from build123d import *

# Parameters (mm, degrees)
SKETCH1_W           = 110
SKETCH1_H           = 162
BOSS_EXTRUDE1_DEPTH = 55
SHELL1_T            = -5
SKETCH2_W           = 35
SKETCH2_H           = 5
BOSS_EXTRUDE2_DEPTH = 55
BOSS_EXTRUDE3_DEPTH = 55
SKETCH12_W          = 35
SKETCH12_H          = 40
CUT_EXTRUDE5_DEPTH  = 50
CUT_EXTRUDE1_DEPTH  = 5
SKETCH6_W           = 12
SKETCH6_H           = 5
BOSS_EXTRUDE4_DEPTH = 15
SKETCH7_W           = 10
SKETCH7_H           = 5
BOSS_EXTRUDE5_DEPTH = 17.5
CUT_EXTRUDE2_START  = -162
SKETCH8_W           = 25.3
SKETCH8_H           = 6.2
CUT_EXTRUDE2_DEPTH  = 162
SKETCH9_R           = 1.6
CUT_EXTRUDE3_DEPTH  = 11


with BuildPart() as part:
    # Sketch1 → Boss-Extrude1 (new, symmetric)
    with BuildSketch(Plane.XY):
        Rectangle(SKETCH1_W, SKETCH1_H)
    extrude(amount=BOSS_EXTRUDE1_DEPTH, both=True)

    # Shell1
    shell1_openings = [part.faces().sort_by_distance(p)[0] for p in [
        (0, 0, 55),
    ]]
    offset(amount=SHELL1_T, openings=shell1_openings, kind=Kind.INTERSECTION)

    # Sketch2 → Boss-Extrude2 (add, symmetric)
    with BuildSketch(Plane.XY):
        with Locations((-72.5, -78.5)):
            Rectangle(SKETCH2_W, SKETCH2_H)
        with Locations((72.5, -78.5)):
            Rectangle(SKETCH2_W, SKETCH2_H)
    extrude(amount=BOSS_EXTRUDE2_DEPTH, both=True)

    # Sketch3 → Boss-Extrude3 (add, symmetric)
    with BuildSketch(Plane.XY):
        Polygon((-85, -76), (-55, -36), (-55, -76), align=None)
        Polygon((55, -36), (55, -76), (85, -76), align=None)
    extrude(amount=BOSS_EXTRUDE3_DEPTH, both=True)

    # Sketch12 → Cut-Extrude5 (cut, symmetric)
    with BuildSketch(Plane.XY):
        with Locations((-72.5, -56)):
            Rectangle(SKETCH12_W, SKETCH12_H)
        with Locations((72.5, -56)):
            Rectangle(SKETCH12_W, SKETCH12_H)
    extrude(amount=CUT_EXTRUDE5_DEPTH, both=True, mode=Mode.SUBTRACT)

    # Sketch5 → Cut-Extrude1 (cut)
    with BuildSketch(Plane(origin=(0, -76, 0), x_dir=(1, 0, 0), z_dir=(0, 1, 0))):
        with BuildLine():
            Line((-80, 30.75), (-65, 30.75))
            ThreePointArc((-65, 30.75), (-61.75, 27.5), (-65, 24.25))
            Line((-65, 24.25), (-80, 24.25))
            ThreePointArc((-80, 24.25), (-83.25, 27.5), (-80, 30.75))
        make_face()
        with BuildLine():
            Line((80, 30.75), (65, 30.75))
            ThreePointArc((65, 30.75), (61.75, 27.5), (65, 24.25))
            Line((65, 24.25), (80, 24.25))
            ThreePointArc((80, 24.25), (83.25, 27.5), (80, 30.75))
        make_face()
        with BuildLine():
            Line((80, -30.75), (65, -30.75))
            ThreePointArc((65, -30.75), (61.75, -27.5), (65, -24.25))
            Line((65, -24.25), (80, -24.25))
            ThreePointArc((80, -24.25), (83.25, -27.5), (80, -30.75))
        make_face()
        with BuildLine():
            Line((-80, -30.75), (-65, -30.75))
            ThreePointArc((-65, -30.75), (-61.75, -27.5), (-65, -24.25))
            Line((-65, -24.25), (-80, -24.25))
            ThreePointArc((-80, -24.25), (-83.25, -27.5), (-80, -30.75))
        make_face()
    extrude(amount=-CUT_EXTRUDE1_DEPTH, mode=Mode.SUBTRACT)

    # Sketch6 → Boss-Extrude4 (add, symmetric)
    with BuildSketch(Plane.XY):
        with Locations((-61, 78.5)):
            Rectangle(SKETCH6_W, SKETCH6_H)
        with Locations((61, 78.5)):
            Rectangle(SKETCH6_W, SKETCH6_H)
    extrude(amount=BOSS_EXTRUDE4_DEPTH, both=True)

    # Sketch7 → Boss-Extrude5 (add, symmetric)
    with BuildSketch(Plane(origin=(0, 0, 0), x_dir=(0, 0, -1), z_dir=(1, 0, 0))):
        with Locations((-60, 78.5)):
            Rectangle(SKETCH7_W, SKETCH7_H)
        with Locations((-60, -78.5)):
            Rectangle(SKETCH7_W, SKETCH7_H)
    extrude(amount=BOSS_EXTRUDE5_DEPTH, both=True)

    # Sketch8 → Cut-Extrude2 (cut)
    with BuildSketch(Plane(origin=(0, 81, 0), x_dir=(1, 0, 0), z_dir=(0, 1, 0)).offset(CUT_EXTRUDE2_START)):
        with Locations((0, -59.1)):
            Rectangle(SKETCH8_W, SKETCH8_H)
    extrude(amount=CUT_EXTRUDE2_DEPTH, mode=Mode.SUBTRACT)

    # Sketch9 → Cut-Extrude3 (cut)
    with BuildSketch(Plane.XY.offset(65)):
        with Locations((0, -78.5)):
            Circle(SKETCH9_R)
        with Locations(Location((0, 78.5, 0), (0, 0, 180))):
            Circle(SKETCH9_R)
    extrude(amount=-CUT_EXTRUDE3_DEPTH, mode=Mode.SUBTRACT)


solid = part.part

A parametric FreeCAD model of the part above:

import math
import FreeCAD as App
import Part
import Sketcher
from FreeCAD import Vector
Q = App.Units.Quantity


def faces_at(feature, points):
    """Names of the faces that lie closest to the given points."""
    faces = feature.Shape.Faces
    near = lambda p: min(range(len(faces)), key=lambda i: faces[i].distToShape(Part.Vertex(*p))[0])
    return sorted({f"Face{near(p) + 1}" for p in points})


def add_polygon(sketch, points):
    """Adds a closed chain of lines whose ends are joined by coincident constraints."""
    first, n = sketch.GeometryCount, len(points)
    for a, b in zip(points, points[1:] + points[:1]):
        sketch.addGeometry(Part.LineSegment(App.Vector(*a, 0), App.Vector(*b, 0)), False)
    for i in range(n):
        sketch.addConstraint(Sketcher.Constraint("Coincident", first + i, 2, first + (i + 1) % n, 1))

doc = App.newDocument("Part")
body = doc.addObject("PartDesign::Body", "Body")

sketch1 = body.newObject("Sketcher::SketchObject", "Sketch")
sketch1.AttachmentSupport = (doc.getObject("XY_Plane"), [""])
sketch1.MapMode = "FlatFace"
add_polygon(sketch1, [(-55, 81), (-55, -81), (55, -81), (55, 81)])
sketch1.addConstraint(Sketcher.Constraint("Vertical", 0))
sketch1.addConstraint(Sketcher.Constraint("Horizontal", 1))
sketch1.addConstraint(Sketcher.Constraint("Vertical", 2))
sketch1.addConstraint(Sketcher.Constraint("Horizontal", 3))
sketch1.addConstraint(Sketcher.Constraint("Symmetric", 0, 2, 2, 2, -1, 1))
sketch1.addConstraint(Sketcher.Constraint("DistanceX", 1, 1, 1, 2, Q("110 mm")))
sketch1.addConstraint(Sketcher.Constraint("DistanceY", 0, 2, 0, 1, Q("162 mm")))
pad1 = body.newObject("PartDesign::Pad", "Pad")
pad1.Profile = sketch1
pad1.Length = 110
pad1.Midplane = True
doc.recompute()

thickness = body.newObject("PartDesign::Thickness", "Thickness")
thickness.Base = (pad1, faces_at(pad1, [(0, 0, 55)]))
thickness.Value = 5
thickness.Reversed = True
thickness.Join = "Intersection"

sketch2 = body.newObject("Sketcher::SketchObject", "Sketch001")
sketch2.AttachmentSupport = (doc.getObject("XY_Plane"), [""])
sketch2.MapMode = "FlatFace"
add_polygon(sketch2, [(-90, -76), (-90, -81), (-55, -81), (-55, -76)])
add_polygon(sketch2, [(55, -76), (55, -81), (90, -81), (90, -76)])
sketch2.addConstraint(Sketcher.Constraint("Vertical", 0))
sketch2.addConstraint(Sketcher.Constraint("Horizontal", 1))
sketch2.addConstraint(Sketcher.Constraint("Vertical", 2))
sketch2.addConstraint(Sketcher.Constraint("Horizontal", 3))
sketch2.addConstraint(Sketcher.Constraint("Vertical", 4))
sketch2.addConstraint(Sketcher.Constraint("Horizontal", 5))
sketch2.addConstraint(Sketcher.Constraint("Vertical", 6))
sketch2.addConstraint(Sketcher.Constraint("Horizontal", 7))
sketch2.addConstraint(Sketcher.Constraint("Symmetric", 1, 2, 4, 2, -2))
sketch2.addConstraint(Sketcher.Constraint("Symmetric", 3, 2, 6, 2, -2))
sketch2.addConstraint(Sketcher.Constraint("DistanceX", 1, 1, 1, 2, Q("35 mm")))
sketch2.addConstraint(Sketcher.Constraint("DistanceY", 0, 2, 0, 1, Q("5 mm")))
sketch2.addConstraint(Sketcher.Constraint("DistanceX", 0, 2, -1, 1, Q("90 mm")))
sketch2.addConstraint(Sketcher.Constraint("DistanceY", 0, 2, -1, 1, Q("81 mm")))
pad2 = body.newObject("PartDesign::Pad", "Pad001")
pad2.Profile = sketch2
pad2.Length = 110
pad2.Midplane = True

sketch3 = body.newObject("Sketcher::SketchObject", "Sketch002")
sketch3.AttachmentSupport = (doc.getObject("XY_Plane"), [""])
sketch3.MapMode = "FlatFace"
add_polygon(sketch3, [(-55, -36), (-85, -76), (-55, -76)])
add_polygon(sketch3, [(55, -36), (55, -76), (85, -76)])
sketch3.addConstraint(Sketcher.Constraint("Horizontal", 1))
sketch3.addConstraint(Sketcher.Constraint("Vertical", 2))
sketch3.addConstraint(Sketcher.Constraint("Vertical", 3))
sketch3.addConstraint(Sketcher.Constraint("Horizontal", 4))
sketch3.addConstraint(Sketcher.Constraint("Symmetric", 1, 2, 3, 2, -2))
sketch3.addConstraint(Sketcher.Constraint("Horizontal", 2, 2, 5, 2))
sketch3.addConstraint(Sketcher.Constraint("Equal", 1, 4))
sketch3.addConstraint(Sketcher.Constraint("DistanceX", 1, 1, 1, 2, Q("30 mm")))
sketch3.addConstraint(Sketcher.Constraint("DistanceY", 2, 1, 2, 2, Q("40 mm")))
sketch3.addConstraint(Sketcher.Constraint("DistanceX", 0, 2, -1, 1, Q("85 mm")))
sketch3.addConstraint(Sketcher.Constraint("DistanceY", 0, 2, -1, 1, Q("76 mm")))
pad3 = body.newObject("PartDesign::Pad", "Pad002")
pad3.Profile = sketch3
pad3.Length = 110
pad3.Midplane = True

sketch4 = body.newObject("Sketcher::SketchObject", "Sketch003")
sketch4.AttachmentSupport = (doc.getObject("XY_Plane"), [""])
sketch4.MapMode = "FlatFace"
add_polygon(sketch4, [(-90, -36), (-90, -76), (-55, -76), (-55, -36)])
add_polygon(sketch4, [(55, -36), (55, -76), (90, -76), (90, -36)])
sketch4.addConstraint(Sketcher.Constraint("Vertical", 0))
sketch4.addConstraint(Sketcher.Constraint("Horizontal", 1))
sketch4.addConstraint(Sketcher.Constraint("Vertical", 2))
sketch4.addConstraint(Sketcher.Constraint("Horizontal", 3))
sketch4.addConstraint(Sketcher.Constraint("Vertical", 4))
sketch4.addConstraint(Sketcher.Constraint("Horizontal", 5))
sketch4.addConstraint(Sketcher.Constraint("Vertical", 6))
sketch4.addConstraint(Sketcher.Constraint("Horizontal", 7))
sketch4.addConstraint(Sketcher.Constraint("Symmetric", 1, 2, 4, 2, -2))
sketch4.addConstraint(Sketcher.Constraint("Symmetric", 3, 2, 6, 2, -2))
sketch4.addConstraint(Sketcher.Constraint("DistanceX", 1, 1, 1, 2, Q("35 mm")))
sketch4.addConstraint(Sketcher.Constraint("DistanceY", 0, 2, 0, 1, Q("40 mm")))
sketch4.addConstraint(Sketcher.Constraint("DistanceX", 0, 2, -1, 1, Q("90 mm")))
sketch4.addConstraint(Sketcher.Constraint("DistanceY", 0, 2, -1, 1, Q("76 mm")))
pocket1 = body.newObject("PartDesign::Pocket", "Pocket")
pocket1.Profile = sketch4
pocket1.Length = 100
pocket1.Midplane = True

sketch5 = body.newObject("Sketcher::SketchObject", "Sketch004")
sketch5.AttachmentSupport = (doc.getObject("XZ_Plane"), [""])
sketch5.MapMode = "FlatFace"
sketch5.AttachmentOffset = App.Placement(Vector(0, 0, 76), App.Rotation())
sketch5.addGeometry(Part.LineSegment(Vector(-65, -30.8, 0), Vector(-80, -30.8, 0)), False)
sketch5.addGeometry(Part.ArcOfCircle(Part.Circle(Vector(-80, -27.5, 0), Vector(0, 0, 1), 3.2), math.radians(90), math.radians(270)), False)
sketch5.addGeometry(Part.LineSegment(Vector(-80, -24.2, 0), Vector(-65, -24.2, 0)), False)
sketch5.addGeometry(Part.ArcOfCircle(Part.Circle(Vector(-65, -27.5, 0), Vector(0, 0, 1), 3.2), math.radians(-90), math.radians(90)), False)
sketch5.addGeometry(Part.LineSegment(Vector(80, -30.8, 0), Vector(65, -30.8, 0)), False)
sketch5.addGeometry(Part.ArcOfCircle(Part.Circle(Vector(65, -27.5, 0), Vector(0, 0, 1), 3.2), math.radians(90), math.radians(270)), False)
sketch5.addGeometry(Part.LineSegment(Vector(65, -24.2, 0), Vector(80, -24.2, 0)), False)
sketch5.addGeometry(Part.ArcOfCircle(Part.Circle(Vector(80, -27.5, 0), Vector(0, 0, 1), 3.2), math.radians(-90), math.radians(90)), False)
sketch5.addGeometry(Part.LineSegment(Vector(65, 30.8, 0), Vector(80, 30.8, 0)), False)
sketch5.addGeometry(Part.ArcOfCircle(Part.Circle(Vector(80, 27.5, 0), Vector(0, 0, 1), 3.2), math.radians(-90), math.radians(90)), False)
sketch5.addGeometry(Part.LineSegment(Vector(80, 24.2, 0), Vector(65, 24.2, 0)), False)
sketch5.addGeometry(Part.ArcOfCircle(Part.Circle(Vector(65, 27.5, 0), Vector(0, 0, 1), 3.2), math.radians(90), math.radians(270)), False)
sketch5.addGeometry(Part.LineSegment(Vector(-80, 30.8, 0), Vector(-65, 30.8, 0)), False)
sketch5.addGeometry(Part.ArcOfCircle(Part.Circle(Vector(-65, 27.5, 0), Vector(0, 0, 1), 3.2), math.radians(-90), math.radians(90)), False)
sketch5.addGeometry(Part.LineSegment(Vector(-65, 24.2, 0), Vector(-80, 24.2, 0)), False)
sketch5.addGeometry(Part.ArcOfCircle(Part.Circle(Vector(-80, 27.5, 0), Vector(0, 0, 1), 3.2), math.radians(90), math.radians(270)), False)
sketch5.addConstraint(Sketcher.Constraint("Tangent", 0, 2, 1, 2))
sketch5.addConstraint(Sketcher.Constraint("Tangent", 1, 1, 2, 1))
sketch5.addConstraint(Sketcher.Constraint("Tangent", 2, 2, 3, 2))
sketch5.addConstraint(Sketcher.Constraint("Tangent", 3, 1, 0, 1))
sketch5.addConstraint(Sketcher.Constraint("Tangent", 4, 2, 5, 2))
sketch5.addConstraint(Sketcher.Constraint("Tangent", 5, 1, 6, 1))
sketch5.addConstraint(Sketcher.Constraint("Tangent", 6, 2, 7, 2))
sketch5.addConstraint(Sketcher.Constraint("Tangent", 7, 1, 4, 1))
sketch5.addConstraint(Sketcher.Constraint("Tangent", 8, 2, 9, 2))
sketch5.addConstraint(Sketcher.Constraint("Tangent", 9, 1, 10, 1))
sketch5.addConstraint(Sketcher.Constraint("Tangent", 10, 2, 11, 2))
sketch5.addConstraint(Sketcher.Constraint("Tangent", 11, 1, 8, 1))
sketch5.addConstraint(Sketcher.Constraint("Tangent", 12, 2, 13, 2))
sketch5.addConstraint(Sketcher.Constraint("Tangent", 13, 1, 14, 1))
sketch5.addConstraint(Sketcher.Constraint("Tangent", 14, 2, 15, 2))
sketch5.addConstraint(Sketcher.Constraint("Tangent", 15, 1, 12, 1))
sketch5.addConstraint(Sketcher.Constraint("Horizontal", 0))
sketch5.addConstraint(Sketcher.Constraint("Horizontal", 2))
sketch5.addConstraint(Sketcher.Constraint("Horizontal", 4))
sketch5.addConstraint(Sketcher.Constraint("Horizontal", 6))
sketch5.addConstraint(Sketcher.Constraint("Horizontal", 8))
sketch5.addConstraint(Sketcher.Constraint("Horizontal", 10))
sketch5.addConstraint(Sketcher.Constraint("Horizontal", 12))
sketch5.addConstraint(Sketcher.Constraint("Horizontal", 14))
sketch5.addConstraint(Sketcher.Constraint("Equal", 3, 5))
sketch5.addConstraint(Sketcher.Constraint("Equal", 7, 9))
sketch5.addConstraint(Sketcher.Constraint("Equal", 11, 13))
sketch5.addConstraint(Sketcher.Constraint("Symmetric", 1, 3, 9, 3, -1, 1))
sketch5.addConstraint(Sketcher.Constraint("Symmetric", 5, 3, 13, 3, -1, 1))
sketch5.addConstraint(Sketcher.Constraint("Symmetric", 3, 3, 5, 3, -2))
sketch5.addConstraint(Sketcher.Constraint("Vertical", 7, 3, 9, 3))
sketch5.addConstraint(Sketcher.Constraint("Vertical", 5, 3, 11, 3))
sketch5.addConstraint(Sketcher.Constraint("Vertical", 1, 3, 15, 3))
sketch5.addConstraint(Sketcher.Constraint("DistanceX", 0, 2, 0, 1, Q("15 mm")))
sketch5.addConstraint(Sketcher.Constraint("Radius", 1, Q("3.25 mm")))
sketch5.addConstraint(Sketcher.Constraint("DistanceX", 1, 3, -1, 1, Q("80 mm")))
sketch5.addConstraint(Sketcher.Constraint("DistanceY", 7, 3, 9, 3, Q("55 mm")))
pocket2 = body.newObject("PartDesign::Pocket", "Pocket001")
pocket2.Profile = sketch5
pocket2.Length = 5
pocket2.Reversed = True

sketch6 = body.newObject("Sketcher::SketchObject", "Sketch005")
sketch6.AttachmentSupport = (doc.getObject("XY_Plane"), [""])
sketch6.MapMode = "FlatFace"
add_polygon(sketch6, [(-67, 81), (-67, 76), (-55, 76), (-55, 81)])
add_polygon(sketch6, [(55, 81), (55, 76), (67, 76), (67, 81)])
sketch6.addConstraint(Sketcher.Constraint("Vertical", 0))
sketch6.addConstraint(Sketcher.Constraint("Horizontal", 1))
sketch6.addConstraint(Sketcher.Constraint("Vertical", 2))
sketch6.addConstraint(Sketcher.Constraint("Horizontal", 3))
sketch6.addConstraint(Sketcher.Constraint("Vertical", 4))
sketch6.addConstraint(Sketcher.Constraint("Horizontal", 5))
sketch6.addConstraint(Sketcher.Constraint("Vertical", 6))
sketch6.addConstraint(Sketcher.Constraint("Horizontal", 7))
sketch6.addConstraint(Sketcher.Constraint("Symmetric", 1, 2, 4, 2, -2))
sketch6.addConstraint(Sketcher.Constraint("Symmetric", 3, 2, 6, 2, -2))
sketch6.addConstraint(Sketcher.Constraint("DistanceX", 1, 1, 1, 2, Q("12 mm")))
sketch6.addConstraint(Sketcher.Constraint("DistanceY", 0, 2, 0, 1, Q("5 mm")))
sketch6.addConstraint(Sketcher.Constraint("DistanceX", 0, 2, -1, 1, Q("67 mm")))
sketch6.addConstraint(Sketcher.Constraint("DistanceY", -1, 1, 0, 2, Q("76 mm")))
pad4 = body.newObject("PartDesign::Pad", "Pad003")
pad4.Profile = sketch6
pad4.Length = 30
pad4.Midplane = True

sketch7 = body.newObject("Sketcher::SketchObject", "Sketch006")
sketch7.AttachmentSupport = (doc.getObject("YZ_Plane"), [""])
sketch7.MapMode = "FlatFace"
add_polygon(sketch7, [(81, 65), (76, 65), (76, 55), (81, 55)])
add_polygon(sketch7, [(-76, 65), (-81, 65), (-81, 55), (-76, 55)])
sketch7.addConstraint(Sketcher.Constraint("Horizontal", 0))
sketch7.addConstraint(Sketcher.Constraint("Vertical", 1))
sketch7.addConstraint(Sketcher.Constraint("Horizontal", 2))
sketch7.addConstraint(Sketcher.Constraint("Vertical", 3))
sketch7.addConstraint(Sketcher.Constraint("Horizontal", 4))
sketch7.addConstraint(Sketcher.Constraint("Vertical", 5))
sketch7.addConstraint(Sketcher.Constraint("Horizontal", 6))
sketch7.addConstraint(Sketcher.Constraint("Vertical", 7))
sketch7.addConstraint(Sketcher.Constraint("Symmetric", 3, 2, 4, 2, -2))
sketch7.addConstraint(Sketcher.Constraint("Symmetric", 1, 2, 6, 2, -2))
sketch7.addConstraint(Sketcher.Constraint("DistanceX", 0, 2, 0, 1, Q("5 mm")))
sketch7.addConstraint(Sketcher.Constraint("DistanceY", 1, 2, 1, 1, Q("10 mm")))
sketch7.addConstraint(Sketcher.Constraint("DistanceX", -1, 1, 0, 2, Q("76 mm")))
sketch7.addConstraint(Sketcher.Constraint("DistanceY", -1, 1, 0, 2, Q("65 mm")))
pad5 = body.newObject("PartDesign::Pad", "Pad004")
pad5.Profile = sketch7
pad5.Length = 35
pad5.Midplane = True

sketch8 = body.newObject("Sketcher::SketchObject", "Sketch007")
sketch8.AttachmentSupport = (doc.getObject("XZ_Plane"), [""])
sketch8.MapMode = "FlatFace"
sketch8.AttachmentOffset = App.Placement(Vector(0, 0, 81), App.Rotation())
add_polygon(sketch8, [(-13, 56), (-13, 62), (13, 62), (13, 56)])
sketch8.addConstraint(Sketcher.Constraint("Vertical", 0))
sketch8.addConstraint(Sketcher.Constraint("Horizontal", 1))
sketch8.addConstraint(Sketcher.Constraint("Vertical", 2))
sketch8.addConstraint(Sketcher.Constraint("Horizontal", 3))
sketch8.addConstraint(Sketcher.Constraint("DistanceX", 1, 1, 1, 2, Q("25.3 mm")))
sketch8.addConstraint(Sketcher.Constraint("DistanceY", 0, 1, 0, 2, Q("6.2 mm")))
sketch8.addConstraint(Sketcher.Constraint("DistanceY", -1, 1, 2, 2, Q("56 mm")))
sketch8.addConstraint(Sketcher.Constraint("DistanceX", 0, 2, -1, 1, Q("12.65 mm")))
pocket3 = body.newObject("PartDesign::Pocket", "Pocket002")
pocket3.Profile = sketch8
pocket3.Length = 162

sketch9 = body.newObject("Sketcher::SketchObject", "Sketch008")
sketch9.AttachmentSupport = (doc.getObject("XY_Plane"), [""])
sketch9.MapMode = "FlatFace"
sketch9.AttachmentOffset = App.Placement(Vector(0, 0, 65), App.Rotation())
sketch9.addGeometry(Part.Circle(Vector(0, -78.5, 0), Vector(0, 0, 1), 1.6), False)
sketch9.addGeometry(Part.Circle(Vector(0, 78.5, 0), Vector(0, 0, 1), 1.6), False)
sketch9.addConstraint(Sketcher.Constraint("Equal", 0, 1))
sketch9.addConstraint(Sketcher.Constraint("Symmetric", 0, 3, 1, 3, -1, 1))
sketch9.addConstraint(Sketcher.Constraint("PointOnObject", 0, 3, -2))
sketch9.addConstraint(Sketcher.Constraint("Diameter", 0, Q("3.2 mm")))
sketch9.addConstraint(Sketcher.Constraint("DistanceY", 0, 3, 1, 3, Q("157 mm")))
pocket4 = body.newObject("PartDesign::Pocket", "Pocket003")
pocket4.Profile = sketch9
pocket4.Length = 11

doc.recompute()
